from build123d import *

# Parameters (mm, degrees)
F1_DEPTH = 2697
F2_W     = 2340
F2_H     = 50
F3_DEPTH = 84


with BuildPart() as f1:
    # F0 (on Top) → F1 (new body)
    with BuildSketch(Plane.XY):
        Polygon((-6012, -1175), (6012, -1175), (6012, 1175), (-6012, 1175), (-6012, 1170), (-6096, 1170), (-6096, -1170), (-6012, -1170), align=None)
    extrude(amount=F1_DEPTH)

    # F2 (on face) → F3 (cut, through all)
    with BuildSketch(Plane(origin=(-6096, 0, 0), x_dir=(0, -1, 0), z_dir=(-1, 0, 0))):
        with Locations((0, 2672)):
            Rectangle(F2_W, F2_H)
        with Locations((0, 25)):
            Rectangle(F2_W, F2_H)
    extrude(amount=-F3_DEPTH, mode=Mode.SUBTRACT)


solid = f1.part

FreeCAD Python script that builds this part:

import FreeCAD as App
import Part
import Sketcher
from FreeCAD import Vector

doc = App.newDocument("Part")
body = doc.addObject("PartDesign::Body", "Body")

# Sketch on XY plane
sketch1 = body.newObject("Sketcher::SketchObject", "Sketch")
sketch1.AttachmentSupport = (doc.getObject("XY_Plane"), [""])
sketch1.MapMode = "FlatFace"
sketch1.addGeometry(Part.LineSegment(Vector(-6012, -1175, 0), Vector(6012, -1175, 0)), False)
sketch1.addGeometry(Part.LineSegment(Vector(6012, -1175, 0), Vector(6012, 1175, 0)), False)
sketch1.addGeometry(Part.LineSegment(Vector(6012, 1175, 0), Vector(-6012, 1175, 0)), False)
sketch1.addGeometry(Part.LineSegment(Vector(-6012, 1175, 0), Vector(-6012, 1170, 0)), False)
sketch1.addGeometry(Part.LineSegment(Vector(-6012, 1170, 0), Vector(-6096, 1170, 0)), False)
sketch1.addGeometry(Part.LineSegment(Vector(-6096, 1170, 0), Vector(-6096, -1170, 0)), False)
sketch1.addGeometry(Part.LineSegment(Vector(-6096, -1170, 0), Vector(-6012, -1170, 0)), False)
sketch1.addGeometry(Part.LineSegment(Vector(-6012, -1170, 0), Vector(-6012, -1175, 0)), False)
sketch1.addConstraint(Sketcher.Constraint("Coincident", 0, 2, 1, 1))
sketch1.addConstraint(Sketcher.Constraint("Coincident", 1, 2, 2, 1))
sketch1.addConstraint(Sketcher.Constraint("Coincident", 2, 2, 3, 1))
sketch1.addConstraint(Sketcher.Constraint("Coincident", 3, 2, 4, 1))
sketch1.addConstraint(Sketcher.Constraint("Coincident", 4, 2, 5, 1))
sketch1.addConstraint(Sketcher.Constraint("Coincident", 5, 2, 6, 1))
sketch1.addConstraint(Sketcher.Constraint("Coincident", 6, 2, 7, 1))
sketch1.addConstraint(Sketcher.Constraint("Coincident", 7, 2, 0, 1))
sketch1.addConstraint(Sketcher.Constraint("Horizontal", 0))
sketch1.addConstraint(Sketcher.Constraint("Vertical", 1))
sketch1.addConstraint(Sketcher.Constraint("Horizontal", 2))
sketch1.addConstraint(Sketcher.Constraint("Vertical", 3))
sketch1.addConstraint(Sketcher.Constraint("Horizontal", 4))
sketch1.addConstraint(Sketcher.Constraint("Vertical", 5))
sketch1.addConstraint(Sketcher.Constraint("Horizontal", 6))
sketch1.addConstraint(Sketcher.Constraint("Vertical", 7))
sketch1.addConstraint(Sketcher.Constraint("Symmetric", 0, 2, 2, 2, -1, 1))
sketch1.addConstraint(Sketcher.Constraint("Symmetric", 3, 2, 6, 2, -1))
sketch1.addConstraint(Sketcher.Constraint("DistanceX", 0, 1, 0, 2, 12024.0))
sketch1.addConstraint(Sketcher.Constraint("DistanceX", 4, 2, 4, 1, 84.0))
sketch1.addConstraint(Sketcher.Constraint("DistanceY", 1, 1, 1, 2, 2350.0))
sketch1.addConstraint(Sketcher.Constraint("DistanceY", 3, 2, 3, 1, 5.0))
pad1 = body.newObject("PartDesign::Pad", "Pad")
pad1.Profile = sketch1
pad1.Length = 2697

# Sketch on YZ plane
sketch2 = body.newObject("Sketcher::SketchObject", "Sketch001")
sketch2.AttachmentSupport = (doc.getObject("YZ_Plane"), [""])
sketch2.MapMode = "FlatFace"
sketch2.AttachmentOffset = App.Placement(Vector(0, 0, -6096), App.Rotation())
sketch2.addGeometry(Part.LineSegment(Vector(1170, 2697, 0), Vector(1170, 2647, 0)), False)
sketch2.addGeometry(Part.LineSegment(Vector(1170, 2647, 0), Vector(-1170, 2647, 0)), False)
sketch2.addGeometry(Part.LineSegment(Vector(-1170, 2647, 0), Vector(-1170, 2697, 0)), False)
sketch2.addGeometry(Part.LineSegment(Vector(-1170, 2697, 0), Vector(1170, 2697, 0)), False)
sketch2.addGeometry(Part.LineSegment(Vector(1170, 50, 0), Vector(1170, 0, 0)), False)
sketch2.addGeometry(Part.LineSegment(Vector(1170, 0, 0), Vector(-1170, 0, 0)), False)
sketch2.addGeometry(Part.LineSegment(Vector(-1170, 0, 0), Vector(-1170, 50, 0)), False)
sketch2.addGeometry(Part.LineSegment(Vector(-1170, 50, 0), Vector(1170, 50, 0)), False)
sketch2.addConstraint(Sketcher.Constraint("Coincident", 0, 2, 1, 1))
sketch2.addConstraint(Sketcher.Constraint("Coincident", 1, 2, 2, 1))
sketch2.addConstraint(Sketcher.Constraint("Coincident", 2, 2, 3, 1))
sketch2.addConstraint(Sketcher.Constraint("Coincident", 3, 2, 0, 1))
sketch2.addConstraint(Sketcher.Constraint("Coincident", 4, 2, 5, 1))
sketch2.addConstraint(Sketcher.Constraint("Coincident", 5, 2, 6, 1))
sketch2.addConstraint(Sketcher.Constraint("Coincident", 6, 2, 7, 1))
sketch2.addConstraint(Sketcher.Constraint("Coincident", 7, 2, 4, 1))
sketch2.addConstraint(Sketcher.Constraint("Vertical", 0))
sketch2.addConstraint(Sketcher.Constraint("Horizontal", 1))
sketch2.addConstraint(Sketcher.Constraint("Vertical", 2))
sketch2.addConstraint(Sketcher.Constraint("Horizontal", 3))
sketch2.addConstraint(Sketcher.Constraint("Vertical", 4))
sketch2.addConstraint(Sketcher.Constraint("Horizontal", 5))
sketch2.addConstraint(Sketcher.Constraint("Vertical", 6))
sketch2.addConstraint(Sketcher.Constraint("Horizontal", 7))
sketch2.addConstraint(Sketcher.Constraint("Symmetric", 4, 2, 5, 2, -1, 1))
sketch2.addConstraint(Sketcher.Constraint("Vertical", 3, 2, 4, 2))
sketch2.addConstraint(Sketcher.Constraint("Vertical", 2, 2, 5, 2))
sketch2.addConstraint(Sketcher.Constraint("Equal", 2, 4))
sketch2.addConstraint(Sketcher.Constraint("DistanceX", 1, 2, 1, 1, 2340.0))
sketch2.addConstraint(Sketcher.Constraint("DistanceY", 0, 2, 0, 1, 50.0))
sketch2.addConstraint(Sketcher.Constraint("DistanceY", -1, 1, 0, 2, 2647.0))
pocket1 = body.newObject("PartDesign::Pocket", "Pocket")
pocket1.Profile = sketch2
pocket1.Length = 84
pocket1.Reversed = True

doc.recompute()
